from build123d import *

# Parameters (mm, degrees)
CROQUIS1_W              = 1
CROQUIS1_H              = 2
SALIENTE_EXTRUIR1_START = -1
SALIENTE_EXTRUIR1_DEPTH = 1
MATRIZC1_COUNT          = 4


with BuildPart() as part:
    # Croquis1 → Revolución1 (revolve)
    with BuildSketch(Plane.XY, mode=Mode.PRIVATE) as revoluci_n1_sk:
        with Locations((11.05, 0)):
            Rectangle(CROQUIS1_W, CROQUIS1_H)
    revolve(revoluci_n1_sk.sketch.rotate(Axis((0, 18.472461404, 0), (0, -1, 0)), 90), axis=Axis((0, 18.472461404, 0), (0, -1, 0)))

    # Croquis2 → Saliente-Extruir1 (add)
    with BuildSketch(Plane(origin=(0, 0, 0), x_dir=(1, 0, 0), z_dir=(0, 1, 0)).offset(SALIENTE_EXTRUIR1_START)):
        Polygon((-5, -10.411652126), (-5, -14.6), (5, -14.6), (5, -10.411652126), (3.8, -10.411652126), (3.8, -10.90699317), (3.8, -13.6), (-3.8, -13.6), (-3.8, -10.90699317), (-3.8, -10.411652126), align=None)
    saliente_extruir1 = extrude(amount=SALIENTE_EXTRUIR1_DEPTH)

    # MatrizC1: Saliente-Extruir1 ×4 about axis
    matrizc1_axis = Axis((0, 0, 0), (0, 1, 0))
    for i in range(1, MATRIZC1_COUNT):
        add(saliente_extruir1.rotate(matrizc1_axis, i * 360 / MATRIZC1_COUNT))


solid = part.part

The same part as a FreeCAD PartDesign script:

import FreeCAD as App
import Part
import Sketcher
from FreeCAD import Vector

doc = App.newDocument("Part")
params = doc.addObject("Spreadsheet::Sheet", "Params")
for row, (alias, value) in enumerate([
    ("sketch1_width", "1 mm"),
    ("sketch1_height", "2 mm"),
    ("revolution_angle", "360 deg"),
    ("sketch2_width", "10 mm"),
    ("sketch2_width2", "1.2 mm"),
    ("pad1_length", "1 mm"),
], start=1):
    params.set(f"A{row}", alias)
    params.set(f"B{row}", "=" + value)
    params.setAlias(f"B{row}", alias)

body = doc.addObject("PartDesign::Body", "Body")

# Sketch on XY plane
sketch1 = body.newObject("Sketcher::SketchObject", "Sketch")
sketch1.AttachmentSupport = (doc.getObject("XY_Plane"), [""])
sketch1.MapMode = "FlatFace"
sketch1.addGeometry([
    Part.LineSegment(Vector(10.6, 1, 0), Vector(10.6, -1, 0)),
    Part.LineSegment(Vector(10.6, -1, 0), Vector(11.6, -1, 0)),
    Part.LineSegment(Vector(11.6, -1, 0), Vector(11.6, 1, 0)),
    Part.LineSegment(Vector(11.6, 1, 0), Vector(10.6, 1, 0)),
], False)
sketch1.addConstraint([
    Sketcher.Constraint("Coincident", 0, 2, 1, 1),
    Sketcher.Constraint("Coincident", 1, 2, 2, 1),
    Sketcher.Constraint("Coincident", 2, 2, 3, 1),
    Sketcher.Constraint("Coincident", 3, 2, 0, 1),
    Sketcher.Constraint("Vertical", 0),
    Sketcher.Constraint("Horizontal", 1),
    Sketcher.Constraint("Vertical", 2),
    Sketcher.Constraint("Horizontal", 3),
    Sketcher.Constraint("DistanceX", 1, 1, 1, 2, 1.0),
    Sketcher.Constraint("DistanceY", 0, 2, 0, 1, 2.0),
    Sketcher.Constraint("DistanceY", 0, 2, -1, 1, 1.0),
    Sketcher.Constraint("DistanceX", -1, 1, 0, 2, 10.55),
])
sketch1.setExpression("Constraints[8]", "Params.sketch1_width")
sketch1.setExpression("Constraints[9]", "Params.sketch1_height")
revolution = body.newObject("PartDesign::Revolution", "Revolution")
revolution.Profile = sketch1
revolution.ReferenceAxis = (sketch1, ["V_Axis"])
revolution.setExpression("Angle", "Params.revolution_angle")

# Sketch on XZ plane
sketch2 = body.newObject("Sketcher::SketchObject", "Sketch001")
sketch2.AttachmentSupport = (doc.getObject("XZ_Plane"), [""])
sketch2.MapMode = "FlatFace"
sketch2.AttachmentOffset = App.Placement(Vector(0, 0, 1), App.Rotation())
sketch2.addGeometry([
    Part.LineSegment(Vector(-5, 10.4, 0), Vector(-5, 14.6, 0)),  # 0
    Part.LineSegment(Vector(-5, 14.6, 0), Vector(5, 14.6, 0)),  # 1
    Part.LineSegment(Vector(5, 14.6, 0), Vector(5, 10.4, 0)),  # 2
    Part.LineSegment(Vector(5, 10.4, 0), Vector(3.8, 10.4, 0)),  # 3
    Part.LineSegment(Vector(3.8, 10.4, 0), Vector(3.8, 13.6, 0)),  # 4
    Part.LineSegment(Vector(3.8, 13.6, 0), Vector(-3.8, 13.6, 0)),  # 5
    Part.LineSegment(Vector(-3.8, 13.6, 0), Vector(-3.8, 10.4, 0)),  # 6
    Part.LineSegment(Vector(-3.8, 10.4, 0), Vector(-5, 10.4, 0)),  # 7
], False)
sketch2.addConstraint([
    Sketcher.Constraint("Coincident", 0, 2, 1, 1),
    Sketcher.Constraint("Coincident", 1, 2, 2, 1),
    Sketcher.Constraint("Coincident", 2, 2, 3, 1),
    Sketcher.Constraint("Coincident", 3, 2, 4, 1),
    Sketcher.Constraint("Coincident", 4, 2, 5, 1),
    Sketcher.Constraint("Coincident", 5, 2, 6, 1),
    Sketcher.Constraint("Coincident", 6, 2, 7, 1),
    Sketcher.Constraint("Coincident", 7, 2, 0, 1),
    Sketcher.Constraint("Vertical", 0),
    Sketcher.Constraint("Horizontal", 1),
    Sketcher.Constraint("Vertical", 2),
    Sketcher.Constraint("Horizontal", 3),
    Sketcher.Constraint("Vertical", 4),
    Sketcher.Constraint("Horizontal", 5),
    Sketcher.Constraint("Vertical", 6),
    Sketcher.Constraint("Horizontal", 7),
    Sketcher.Constraint("Symmetric", 3, 2, 6, 2, -2),
    Sketcher.Constraint("Equal", 3, 7),
    Sketcher.Constraint("DistanceX", 1, 1, 1, 2, 10.0),
    Sketcher.Constraint("DistanceX", 3, 2, 3, 1, 1.2),
    Sketcher.Constraint("DistanceY", 4, 2, 1, 2, 1.0),
    Sketcher.Constraint("DistanceY", -1, 1, 0, 2, 14.6),
    Sketcher.Constraint("DistanceY", 0, 1, 0, 2, 4.188348),
])
sketch2.setExpression("Constraints[18]", "Params.sketch2_width")
sketch2.setExpression("Constraints[19]", "Params.sketch2_width2")
pad1 = body.newObject("PartDesign::Pad", "Pad")
pad1.Profile = sketch2
pad1.setExpression("Length", "Params.pad1_length")
pad1.Reversed = True
doc.recompute()

polarpattern = body.newObject("PartDesign::PolarPattern", "PolarPattern")
polarpattern.Originals = [pad1]
polarpattern.Axis = (doc.getObject("Y_Axis"), [""])
polarpattern.Angle = 360
polarpattern.Occurrences = 4
body.Tip = polarpattern

doc.recompute()
